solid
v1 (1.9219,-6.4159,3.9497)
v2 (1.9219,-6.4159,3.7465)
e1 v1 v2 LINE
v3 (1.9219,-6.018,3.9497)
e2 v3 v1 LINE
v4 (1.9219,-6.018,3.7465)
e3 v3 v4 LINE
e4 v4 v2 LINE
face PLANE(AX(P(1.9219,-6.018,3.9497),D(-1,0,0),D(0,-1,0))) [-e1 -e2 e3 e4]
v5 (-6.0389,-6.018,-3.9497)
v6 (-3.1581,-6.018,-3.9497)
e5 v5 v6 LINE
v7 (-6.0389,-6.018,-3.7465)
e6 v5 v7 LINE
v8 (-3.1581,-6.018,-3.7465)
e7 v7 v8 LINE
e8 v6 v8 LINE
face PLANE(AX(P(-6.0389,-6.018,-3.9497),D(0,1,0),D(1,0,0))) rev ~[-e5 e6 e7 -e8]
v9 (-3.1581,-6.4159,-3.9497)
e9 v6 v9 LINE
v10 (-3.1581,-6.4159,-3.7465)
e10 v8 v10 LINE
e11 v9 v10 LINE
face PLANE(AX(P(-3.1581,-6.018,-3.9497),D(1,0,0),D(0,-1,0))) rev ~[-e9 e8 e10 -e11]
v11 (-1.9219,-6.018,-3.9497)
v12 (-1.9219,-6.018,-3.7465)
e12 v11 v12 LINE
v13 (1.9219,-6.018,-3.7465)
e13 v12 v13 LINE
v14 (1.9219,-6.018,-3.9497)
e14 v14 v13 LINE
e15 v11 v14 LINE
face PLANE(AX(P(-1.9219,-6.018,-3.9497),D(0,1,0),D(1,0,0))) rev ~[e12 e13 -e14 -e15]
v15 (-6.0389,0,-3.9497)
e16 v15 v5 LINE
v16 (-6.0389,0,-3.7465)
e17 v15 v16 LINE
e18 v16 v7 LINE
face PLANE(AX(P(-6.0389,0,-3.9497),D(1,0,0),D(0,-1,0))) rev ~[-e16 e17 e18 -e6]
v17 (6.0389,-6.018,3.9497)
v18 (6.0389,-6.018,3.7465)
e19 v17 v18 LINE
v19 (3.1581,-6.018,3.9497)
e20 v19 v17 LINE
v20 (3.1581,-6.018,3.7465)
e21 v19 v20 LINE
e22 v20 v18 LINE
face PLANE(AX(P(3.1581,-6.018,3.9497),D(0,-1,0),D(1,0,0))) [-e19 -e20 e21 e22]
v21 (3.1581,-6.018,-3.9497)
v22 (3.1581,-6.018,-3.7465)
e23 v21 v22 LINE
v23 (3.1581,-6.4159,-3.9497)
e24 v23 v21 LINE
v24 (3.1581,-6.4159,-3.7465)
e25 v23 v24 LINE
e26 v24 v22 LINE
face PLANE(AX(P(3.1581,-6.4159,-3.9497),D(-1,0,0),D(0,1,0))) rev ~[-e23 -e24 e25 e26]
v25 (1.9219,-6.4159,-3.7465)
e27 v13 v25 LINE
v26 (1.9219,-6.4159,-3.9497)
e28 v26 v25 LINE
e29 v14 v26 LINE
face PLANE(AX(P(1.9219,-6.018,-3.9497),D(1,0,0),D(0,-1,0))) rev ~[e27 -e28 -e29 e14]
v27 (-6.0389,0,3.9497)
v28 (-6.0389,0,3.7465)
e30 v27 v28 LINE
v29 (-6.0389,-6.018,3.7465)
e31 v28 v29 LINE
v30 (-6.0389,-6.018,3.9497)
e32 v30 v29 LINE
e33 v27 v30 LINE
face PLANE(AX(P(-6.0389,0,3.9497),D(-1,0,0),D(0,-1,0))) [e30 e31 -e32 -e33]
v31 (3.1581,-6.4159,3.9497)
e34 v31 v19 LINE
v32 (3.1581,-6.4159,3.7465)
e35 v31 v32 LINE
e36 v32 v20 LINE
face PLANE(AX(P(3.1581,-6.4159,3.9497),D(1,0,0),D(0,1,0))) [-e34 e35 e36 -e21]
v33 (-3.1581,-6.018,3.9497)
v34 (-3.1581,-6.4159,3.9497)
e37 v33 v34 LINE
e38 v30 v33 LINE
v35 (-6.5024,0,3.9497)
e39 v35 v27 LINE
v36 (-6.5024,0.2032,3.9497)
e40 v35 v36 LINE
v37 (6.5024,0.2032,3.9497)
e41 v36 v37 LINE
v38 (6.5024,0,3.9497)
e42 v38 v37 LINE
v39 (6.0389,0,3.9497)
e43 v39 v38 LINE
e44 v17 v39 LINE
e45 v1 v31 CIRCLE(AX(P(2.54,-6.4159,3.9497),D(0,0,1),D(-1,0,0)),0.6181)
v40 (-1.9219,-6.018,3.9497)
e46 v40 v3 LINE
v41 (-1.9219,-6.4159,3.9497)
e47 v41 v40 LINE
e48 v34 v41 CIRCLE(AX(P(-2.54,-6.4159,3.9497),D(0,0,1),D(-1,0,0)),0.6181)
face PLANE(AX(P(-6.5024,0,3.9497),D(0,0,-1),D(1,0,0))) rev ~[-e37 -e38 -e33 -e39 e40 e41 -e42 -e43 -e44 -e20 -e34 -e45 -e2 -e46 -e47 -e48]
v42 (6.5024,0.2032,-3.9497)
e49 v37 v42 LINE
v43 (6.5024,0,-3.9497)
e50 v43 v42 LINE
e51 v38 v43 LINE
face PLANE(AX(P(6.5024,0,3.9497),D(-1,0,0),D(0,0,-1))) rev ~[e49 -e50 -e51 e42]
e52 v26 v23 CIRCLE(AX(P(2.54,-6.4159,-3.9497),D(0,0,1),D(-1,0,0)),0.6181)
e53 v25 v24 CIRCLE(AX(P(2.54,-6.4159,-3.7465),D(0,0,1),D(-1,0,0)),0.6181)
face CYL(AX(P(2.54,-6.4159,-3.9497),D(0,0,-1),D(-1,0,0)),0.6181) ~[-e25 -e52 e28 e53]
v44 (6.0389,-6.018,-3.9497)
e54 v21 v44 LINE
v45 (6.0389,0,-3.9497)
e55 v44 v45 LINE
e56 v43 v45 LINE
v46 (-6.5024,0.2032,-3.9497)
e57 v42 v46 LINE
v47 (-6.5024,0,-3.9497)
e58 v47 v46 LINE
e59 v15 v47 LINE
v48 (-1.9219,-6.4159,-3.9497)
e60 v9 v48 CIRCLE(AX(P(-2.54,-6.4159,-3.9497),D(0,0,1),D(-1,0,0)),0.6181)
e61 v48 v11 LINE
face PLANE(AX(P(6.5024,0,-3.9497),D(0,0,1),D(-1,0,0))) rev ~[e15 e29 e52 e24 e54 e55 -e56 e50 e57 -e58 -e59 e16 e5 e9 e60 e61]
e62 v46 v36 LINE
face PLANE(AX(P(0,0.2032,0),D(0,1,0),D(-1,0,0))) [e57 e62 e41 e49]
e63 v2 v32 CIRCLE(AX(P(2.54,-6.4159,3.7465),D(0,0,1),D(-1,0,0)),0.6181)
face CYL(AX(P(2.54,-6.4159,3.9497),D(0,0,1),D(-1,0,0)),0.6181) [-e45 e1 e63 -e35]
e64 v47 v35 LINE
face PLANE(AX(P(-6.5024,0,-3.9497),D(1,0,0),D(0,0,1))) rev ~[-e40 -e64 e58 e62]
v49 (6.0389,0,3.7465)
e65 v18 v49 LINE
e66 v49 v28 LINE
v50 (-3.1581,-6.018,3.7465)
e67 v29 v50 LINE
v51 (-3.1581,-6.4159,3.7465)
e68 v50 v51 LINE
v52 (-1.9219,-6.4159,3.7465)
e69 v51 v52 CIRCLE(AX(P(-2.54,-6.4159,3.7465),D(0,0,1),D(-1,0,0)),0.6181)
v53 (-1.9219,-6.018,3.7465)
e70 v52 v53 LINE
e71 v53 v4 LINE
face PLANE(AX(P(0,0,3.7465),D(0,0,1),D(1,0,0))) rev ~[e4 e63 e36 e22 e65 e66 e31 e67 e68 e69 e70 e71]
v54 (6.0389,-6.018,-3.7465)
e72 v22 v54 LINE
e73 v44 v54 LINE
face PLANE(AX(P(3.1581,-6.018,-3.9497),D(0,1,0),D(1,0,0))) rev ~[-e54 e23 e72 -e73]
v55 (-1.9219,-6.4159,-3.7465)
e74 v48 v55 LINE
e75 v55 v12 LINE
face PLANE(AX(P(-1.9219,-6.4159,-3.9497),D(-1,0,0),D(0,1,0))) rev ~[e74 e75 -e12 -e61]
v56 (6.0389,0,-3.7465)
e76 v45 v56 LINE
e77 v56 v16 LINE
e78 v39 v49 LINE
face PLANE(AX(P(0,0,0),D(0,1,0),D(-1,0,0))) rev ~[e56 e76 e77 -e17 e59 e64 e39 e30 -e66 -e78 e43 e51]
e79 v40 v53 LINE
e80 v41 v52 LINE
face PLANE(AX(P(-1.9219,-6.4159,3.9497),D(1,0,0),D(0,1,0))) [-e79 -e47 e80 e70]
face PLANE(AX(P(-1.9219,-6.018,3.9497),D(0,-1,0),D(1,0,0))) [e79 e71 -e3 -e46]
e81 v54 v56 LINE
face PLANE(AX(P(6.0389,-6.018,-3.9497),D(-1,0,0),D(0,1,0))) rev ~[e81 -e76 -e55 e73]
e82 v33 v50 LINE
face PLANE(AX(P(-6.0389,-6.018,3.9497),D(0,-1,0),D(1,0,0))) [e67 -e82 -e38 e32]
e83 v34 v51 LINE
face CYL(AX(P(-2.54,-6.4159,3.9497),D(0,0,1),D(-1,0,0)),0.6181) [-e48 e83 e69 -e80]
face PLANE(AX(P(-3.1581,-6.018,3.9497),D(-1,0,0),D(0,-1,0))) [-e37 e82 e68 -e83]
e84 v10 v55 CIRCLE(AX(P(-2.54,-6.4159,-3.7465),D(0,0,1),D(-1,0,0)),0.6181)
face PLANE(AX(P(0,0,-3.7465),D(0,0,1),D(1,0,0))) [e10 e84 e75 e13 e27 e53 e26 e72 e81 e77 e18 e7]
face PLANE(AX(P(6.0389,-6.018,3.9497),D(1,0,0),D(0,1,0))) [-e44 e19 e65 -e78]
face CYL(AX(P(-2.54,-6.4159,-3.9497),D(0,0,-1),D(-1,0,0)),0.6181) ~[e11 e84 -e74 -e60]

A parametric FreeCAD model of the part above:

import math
import FreeCAD as App
import Part
import Sketcher

V = App.Vector
Q = App.Units.Quantity


def add_polygon(sketch, points):
    """Adds a closed chain of lines whose ends are joined by coincident constraints."""
    first, n = sketch.GeometryCount, len(points)
    for a, b in zip(points, points[1:] + points[:1]):
        sketch.addGeometry(Part.LineSegment(App.Vector(*a, 0), App.Vector(*b, 0)), False)
    for i in range(n):
        sketch.addConstraint(Sketcher.Constraint("Coincident", first + i, 2, first + (i + 1) % n, 1))

doc = App.newDocument("Part")
params = doc.addObject("Spreadsheet::Sheet", "Params")
for row, (alias, value) in enumerate([
    ("sketch1_width", "0.512 in"),
    ("sketch1_height", "0.311 in"),
    ("pad1_length", "0.008 in"),
    ("pad2_length", "0.008 in"),
    ("pad3_length", "0.008 in"),
], start=1):
    params.set(f"A{row}", alias)
    params.set(f"B{row}", "=" + value)
    params.setAlias(f"B{row}", alias)

body = doc.addObject("PartDesign::Body", "Body")

sketch1 = body.newObject("Sketcher::SketchObject", "Sketch")
sketch1.AttachmentSupport = (doc.getObject("XZ_Plane"), [""])
sketch1.MapMode = "FlatFace"
add_polygon(sketch1, [(-7, -4), (-7, 4), (7, 4), (7, -4)])
sketch1.addConstraint(Sketcher.Constraint("Vertical", 0))
sketch1.addConstraint(Sketcher.Constraint("Horizontal", 1))
sketch1.addConstraint(Sketcher.Constraint("Vertical", 2))
sketch1.addConstraint(Sketcher.Constraint("Horizontal", 3))
sketch1.addConstraint(Sketcher.Constraint("Symmetric", 0, 2, 2, 2, -1, 1))
sketch1.addConstraint(Sketcher.Constraint("DistanceX", 1, 1, 1, 2, Q("0.512 in")))
sketch1.addConstraint(Sketcher.Constraint("DistanceY", 0, 1, 0, 2, Q("0.311 in")))
sketch1.setExpression("Constraints[9]", "Params.sketch1_width")
sketch1.setExpression("Constraints[10]", "Params.sketch1_height")
pad1 = body.newObject("PartDesign::Pad", "Pad")
pad1.Profile = sketch1
pad1.setExpression("Length", "Params.pad1_length")
pad1.Reversed = True

sketch2 = body.newObject("Sketcher::SketchObject", "Sketch001")
sketch2.AttachmentSupport = (doc.getObject("XY_Plane"), [""])
sketch2.MapMode = "FlatFace"
sketch2.AttachmentOffset = App.Placement(V(0, 0, -0.1555 * 25.4), App.Rotation())
sketch2.addGeometry(Part.LineSegment(V(-6.04, 0, 0), V(-6.04, -6.02, 0)), False)
sketch2.addGeometry(Part.LineSegment(V(-6.04, -6.02, 0), V(-3.16, -6.02, 0)), False)
sketch2.addGeometry(Part.LineSegment(V(-3.16, -6.02, 0), V(-3.16, -6.42, 0)), False)
sketch2.addGeometry(Part.ArcOfCircle(Part.Circle(V(-2.54, -6.42, 0), V(0, 0, 1), 0.62), math.radians(180), math.radians(360)), False)
sketch2.addGeometry(Part.LineSegment(V(-1.92, -6.42, 0), V(-1.92, -6.02, 0)), False)
sketch2.addGeometry(Part.LineSegment(V(-1.92, -6.02, 0), V(1.92, -6.02, 0)), False)
sketch2.addGeometry(Part.LineSegment(V(1.92, -6.02, 0), V(1.92, -6.42, 0)), False)
sketch2.addGeometry(Part.ArcOfCircle(Part.Circle(V(2.54, -6.42, 0), V(0, 0, 1), 0.62), math.radians(180), math.radians(360)), False)
sketch2.addGeometry(Part.LineSegment(V(3.16, -6.42, 0), V(3.16, -6.02, 0)), False)
sketch2.addGeometry(Part.LineSegment(V(3.16, -6.02, 0), V(6.04, -6.02, 0)), False)
sketch2.addGeometry(Part.LineSegment(V(6.04, -6.02, 0), V(6.04, 0, 0)), False)
sketch2.addGeometry(Part.LineSegment(V(6.04, 0, 0), V(-6.04, 0, 0)), False)
sketch2.addConstraint(Sketcher.Constraint("Coincident", 0, 2, 1, 1))
sketch2.addConstraint(Sketcher.Constraint("Coincident", 1, 2, 2, 1))
sketch2.addConstraint(Sketcher.Constraint("Tangent", 2, 2, 3, 1))
sketch2.addConstraint(Sketcher.Constraint("Tangent", 3, 2, 4, 1))
sketch2.addConstraint(Sketcher.Constraint("Coincident", 4, 2, 5, 1))
sketch2.addConstraint(Sketcher.Constraint("Coincident", 5, 2, 6, 1))
sketch2.addConstraint(Sketcher.Constraint("Tangent", 6, 2, 7, 1))
sketch2.addConstraint(Sketcher.Constraint("Tangent", 7, 2, 8, 1))
sketch2.addConstraint(Sketcher.Constraint("Coincident", 8, 2, 9, 1))
sketch2.addConstraint(Sketcher.Constraint("Coincident", 9, 2, 10, 1))
sketch2.addConstraint(Sketcher.Constraint("Coincident", 10, 2, 11, 1))
sketch2.addConstraint(Sketcher.Constraint("Coincident", 11, 2, 0, 1))
sketch2.addConstraint(Sketcher.Constraint("Vertical", 0))
sketch2.addConstraint(Sketcher.Constraint("Horizontal", 1))
sketch2.addConstraint(Sketcher.Constraint("Vertical", 2))
sketch2.addConstraint(Sketcher.Constraint("Vertical", 4))
sketch2.addConstraint(Sketcher.Constraint("Horizontal", 5))
sketch2.addConstraint(Sketcher.Constraint("Vertical", 6))
sketch2.addConstraint(Sketcher.Constraint("Vertical", 8))
sketch2.addConstraint(Sketcher.Constraint("Horizontal", 9))
sketch2.addConstraint(Sketcher.Constraint("Vertical", 10))
sketch2.addConstraint(Sketcher.Constraint("Horizontal", 11))
sketch2.addConstraint(Sketcher.Constraint("Equal", 3, 7))
sketch2.addConstraint(Sketcher.Constraint("Symmetric", 10, 2, 11, 2, -1, 1))
sketch2.addConstraint(Sketcher.Constraint("Symmetric", 3, 3, 7, 3, -2))
sketch2.addConstraint(Sketcher.Constraint("Horizontal", 1, 2, 4, 2))
sketch2.addConstraint(Sketcher.Constraint("Horizontal", 5, 2, 8, 2))
sketch2.addConstraint(Sketcher.Constraint("DistanceX", 3, 3, -1, 1, Q("0.1 in")))
sketch2.addConstraint(Sketcher.Constraint("Radius", 3, 0.618))
sketch2.addConstraint(Sketcher.Constraint("DistanceX", 11, 2, 11, 1, Q("0.4755 in")))
sketch2.addConstraint(Sketcher.Constraint("DistanceY", 0, 2, 0, 1, 6.018))
sketch2.addConstraint(Sketcher.Constraint("DistanceY", 2, 2, 2, 1, 0.398))
pad2 = body.newObject("PartDesign::Pad", "Pad001")
pad2.Profile = sketch2
pad2.setExpression("Length", "Params.pad2_length")

sketch3 = body.newObject("Sketcher::SketchObject", "Sketch002")
sketch3.AttachmentSupport = (doc.getObject("XY_Plane"), [""])
sketch3.MapMode = "FlatFace"
sketch3.AttachmentOffset = App.Placement(V(0, 0, 0.1555 * 25.4), App.Rotation())
sketch3.addGeometry(Part.LineSegment(V(-6.04, 0, 0), V(-6.04, -6.02, 0)), False)
sketch3.addGeometry(Part.LineSegment(V(-6.04, -6.02, 0), V(-3.16, -6.02, 0)), False)
sketch3.addGeometry(Part.LineSegment(V(-3.16, -6.02, 0), V(-3.16, -6.42, 0)), False)
sketch3.addGeometry(Part.ArcOfCircle(Part.Circle(V(-2.54, -6.42, 0), V(0, 0, 1), 0.62), math.radians(180), math.radians(360)), False)
sketch3.addGeometry(Part.LineSegment(V(-1.92, -6.42, 0), V(-1.92, -6.02, 0)), False)
sketch3.addGeometry(Part.LineSegment(V(-1.92, -6.02, 0), V(1.92, -6.02, 0)), False)
sketch3.addGeometry(Part.LineSegment(V(1.92, -6.02, 0), V(1.92, -6.42, 0)), False)
sketch3.addGeometry(Part.ArcOfCircle(Part.Circle(V(2.54, -6.42, 0), V(0, 0, 1), 0.62), math.radians(180), math.radians(360)), False)
sketch3.addGeometry(Part.LineSegment(V(3.16, -6.42, 0), V(3.16, -6.02, 0)), False)
sketch3.addGeometry(Part.LineSegment(V(3.16, -6.02, 0), V(6.04, -6.02, 0)), False)
sketch3.addGeometry(Part.LineSegment(V(6.04, -6.02, 0), V(6.04, 0, 0)), False)
sketch3.addGeometry(Part.LineSegment(V(6.04, 0, 0), V(-6.04, 0, 0)), False)
sketch3.addConstraint(Sketcher.Constraint("Coincident", 0, 2, 1, 1))
sketch3.addConstraint(Sketcher.Constraint("Coincident", 1, 2, 2, 1))
sketch3.addConstraint(Sketcher.Constraint("Tangent", 2, 2, 3, 1))
sketch3.addConstraint(Sketcher.Constraint("Tangent", 3, 2, 4, 1))
sketch3.addConstraint(Sketcher.Constraint("Coincident", 4, 2, 5, 1))
sketch3.addConstraint(Sketcher.Constraint("Coincident", 5, 2, 6, 1))
sketch3.addConstraint(Sketcher.Constraint("Tangent", 6, 2, 7, 1))
sketch3.addConstraint(Sketcher.Constraint("Tangent", 7, 2, 8, 1))
sketch3.addConstraint(Sketcher.Constraint("Coincident", 8, 2, 9, 1))
sketch3.addConstraint(Sketcher.Constraint("Coincident", 9, 2, 10, 1))
sketch3.addConstraint(Sketcher.Constraint("Coincident", 10, 2, 11, 1))
sketch3.addConstraint(Sketcher.Constraint("Coincident", 11, 2, 0, 1))
sketch3.addConstraint(Sketcher.Constraint("Vertical", 0))
sketch3.addConstraint(Sketcher.Constraint("Horizontal", 1))
sketch3.addConstraint(Sketcher.Constraint("Vertical", 2))
sketch3.addConstraint(Sketcher.Constraint("Vertical", 4))
sketch3.addConstraint(Sketcher.Constraint("Horizontal", 5))
sketch3.addConstraint(Sketcher.Constraint("Vertical", 6))
sketch3.addConstraint(Sketcher.Constraint("Vertical", 8))
sketch3.addConstraint(Sketcher.Constraint("Horizontal", 9))
sketch3.addConstraint(Sketcher.Constraint("Vertical", 10))
sketch3.addConstraint(Sketcher.Constraint("Horizontal", 11))
sketch3.addConstraint(Sketcher.Constraint("Equal", 3, 7))
sketch3.addConstraint(Sketcher.Constraint("Symmetric", 10, 2, 11, 2, -1, 1))
sketch3.addConstraint(Sketcher.Constraint("Symmetric", 3, 3, 7, 3, -2))
sketch3.addConstraint(Sketcher.Constraint("Horizontal", 1, 2, 4, 2))
sketch3.addConstraint(Sketcher.Constraint("Horizontal", 5, 2, 8, 2))
sketch3.addConstraint(Sketcher.Constraint("DistanceX", 3, 3, -1, 1, Q("0.1 in")))
sketch3.addConstraint(Sketcher.Constraint("Radius", 3, 0.618))
sketch3.addConstraint(Sketcher.Constraint("DistanceX", 11, 2, 11, 1, Q("0.4755 in")))
sketch3.addConstraint(Sketcher.Constraint("DistanceY", 0, 2, 0, 1, 6.018))
sketch3.addConstraint(Sketcher.Constraint("DistanceY", 2, 2, 2, 1, 0.398))
pad3 = body.newObject("PartDesign::Pad", "Pad002")
pad3.Profile = sketch3
pad3.setExpression("Length", "Params.pad3_length")
pad3.Reversed = True

doc.recompute()
